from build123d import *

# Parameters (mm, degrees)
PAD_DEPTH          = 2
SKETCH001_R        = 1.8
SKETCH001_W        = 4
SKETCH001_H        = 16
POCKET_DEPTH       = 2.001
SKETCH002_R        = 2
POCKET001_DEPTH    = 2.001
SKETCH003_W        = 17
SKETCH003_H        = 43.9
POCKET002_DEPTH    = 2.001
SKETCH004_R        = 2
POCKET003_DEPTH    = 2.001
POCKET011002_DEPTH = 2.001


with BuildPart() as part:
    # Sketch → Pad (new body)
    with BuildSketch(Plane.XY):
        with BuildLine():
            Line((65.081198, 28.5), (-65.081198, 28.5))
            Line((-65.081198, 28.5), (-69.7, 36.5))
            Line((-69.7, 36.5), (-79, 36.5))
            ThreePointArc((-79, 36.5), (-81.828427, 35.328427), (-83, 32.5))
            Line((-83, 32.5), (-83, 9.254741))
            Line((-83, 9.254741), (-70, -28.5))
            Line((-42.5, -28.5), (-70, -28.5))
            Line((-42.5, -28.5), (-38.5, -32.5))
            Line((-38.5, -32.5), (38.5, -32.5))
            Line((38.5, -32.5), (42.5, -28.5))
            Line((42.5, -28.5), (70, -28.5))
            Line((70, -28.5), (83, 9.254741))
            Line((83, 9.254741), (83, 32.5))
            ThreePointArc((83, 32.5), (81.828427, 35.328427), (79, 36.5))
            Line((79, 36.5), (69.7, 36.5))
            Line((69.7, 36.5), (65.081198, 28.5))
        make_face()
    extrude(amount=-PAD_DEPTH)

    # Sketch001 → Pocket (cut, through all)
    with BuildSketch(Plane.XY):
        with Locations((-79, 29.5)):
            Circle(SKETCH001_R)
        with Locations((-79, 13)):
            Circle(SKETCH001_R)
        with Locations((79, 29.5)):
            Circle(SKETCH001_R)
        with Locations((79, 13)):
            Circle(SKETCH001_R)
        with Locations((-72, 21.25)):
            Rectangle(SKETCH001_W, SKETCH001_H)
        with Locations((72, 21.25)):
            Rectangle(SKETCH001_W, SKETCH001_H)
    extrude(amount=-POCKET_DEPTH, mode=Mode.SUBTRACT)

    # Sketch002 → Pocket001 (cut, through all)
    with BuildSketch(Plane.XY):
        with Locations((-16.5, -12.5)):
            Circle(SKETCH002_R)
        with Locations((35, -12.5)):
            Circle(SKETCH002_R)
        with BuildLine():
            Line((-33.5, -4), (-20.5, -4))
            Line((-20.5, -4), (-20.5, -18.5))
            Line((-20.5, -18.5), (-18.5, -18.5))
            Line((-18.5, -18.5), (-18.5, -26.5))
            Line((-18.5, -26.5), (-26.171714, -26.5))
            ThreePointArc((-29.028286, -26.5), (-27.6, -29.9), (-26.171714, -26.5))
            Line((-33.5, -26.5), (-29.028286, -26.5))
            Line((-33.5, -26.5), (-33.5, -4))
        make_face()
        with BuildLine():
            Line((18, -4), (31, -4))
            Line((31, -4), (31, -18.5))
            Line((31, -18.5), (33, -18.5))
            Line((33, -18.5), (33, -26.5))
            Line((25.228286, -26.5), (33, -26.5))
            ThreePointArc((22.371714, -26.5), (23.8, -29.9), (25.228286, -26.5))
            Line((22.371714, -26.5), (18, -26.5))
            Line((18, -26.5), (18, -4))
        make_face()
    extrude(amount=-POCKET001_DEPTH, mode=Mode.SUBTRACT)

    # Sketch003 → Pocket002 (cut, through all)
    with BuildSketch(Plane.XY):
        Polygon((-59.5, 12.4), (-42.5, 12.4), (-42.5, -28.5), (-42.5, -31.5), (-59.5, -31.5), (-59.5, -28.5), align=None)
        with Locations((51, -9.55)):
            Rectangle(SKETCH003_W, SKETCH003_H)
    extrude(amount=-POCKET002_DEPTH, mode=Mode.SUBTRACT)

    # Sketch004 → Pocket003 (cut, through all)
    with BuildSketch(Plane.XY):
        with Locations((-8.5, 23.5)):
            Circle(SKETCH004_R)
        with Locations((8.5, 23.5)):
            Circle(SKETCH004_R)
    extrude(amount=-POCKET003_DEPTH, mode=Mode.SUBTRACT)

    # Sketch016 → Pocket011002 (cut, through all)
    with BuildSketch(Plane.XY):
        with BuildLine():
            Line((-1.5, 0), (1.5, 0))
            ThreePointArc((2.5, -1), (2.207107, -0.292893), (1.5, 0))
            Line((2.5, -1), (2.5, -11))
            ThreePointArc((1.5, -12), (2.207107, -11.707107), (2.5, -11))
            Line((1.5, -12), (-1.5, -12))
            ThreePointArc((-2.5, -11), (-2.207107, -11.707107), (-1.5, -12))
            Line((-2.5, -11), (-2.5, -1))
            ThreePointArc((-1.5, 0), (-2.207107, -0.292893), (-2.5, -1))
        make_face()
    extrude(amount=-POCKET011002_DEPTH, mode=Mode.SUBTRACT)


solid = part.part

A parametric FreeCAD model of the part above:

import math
import FreeCAD as App
import Part
import Sketcher
Q = App.Units.Quantity

doc = App.newDocument("Part")
body = doc.addObject("PartDesign::Body", "Body")

sketch1 = body.newObject("Sketcher::SketchObject", "Sketch")
sketch1.AttachmentSupport = (doc.getObject("XY_Plane"), [""])
sketch1.MapMode = "FlatFace"
sketch1.addGeometry(Part.LineSegment(App.Vector(65.1, 28.5, 0), App.Vector(-65.1, 28.5, 0)), False)
sketch1.addGeometry(Part.LineSegment(App.Vector(-65.1, 28.5, 0), App.Vector(-69.7, 36.5, 0)), False)
sketch1.addGeometry(Part.LineSegment(App.Vector(-69.7, 36.5, 0), App.Vector(-79, 36.5, 0)), False)
sketch1.addGeometry(Part.ArcOfCircle(Part.Circle(App.Vector(-79, 32.5, 0), App.Vector(0, 0, 1), 4), math.radians(90), math.radians(180)), False)
sketch1.addGeometry(Part.LineSegment(App.Vector(-83, 32.5, 0), App.Vector(-83, 9.3, 0)), False)
sketch1.addGeometry(Part.LineSegment(App.Vector(-83, 9.3, 0), App.Vector(-70, -28.5, 0)), False)
sketch1.addGeometry(Part.LineSegment(App.Vector(-70, -28.5, 0), App.Vector(-42.5, -28.5, 0)), False)
sketch1.addGeometry(Part.LineSegment(App.Vector(-42.5, -28.5, 0), App.Vector(-38.5, -32.5, 0)), False)
sketch1.addGeometry(Part.LineSegment(App.Vector(-38.5, -32.5, 0), App.Vector(38.5, -32.5, 0)), False)
sketch1.addGeometry(Part.LineSegment(App.Vector(38.5, -32.5, 0), App.Vector(42.5, -28.5, 0)), False)
sketch1.addGeometry(Part.LineSegment(App.Vector(42.5, -28.5, 0), App.Vector(70, -28.5, 0)), False)
sketch1.addGeometry(Part.LineSegment(App.Vector(70, -28.5, 0), App.Vector(83, 9.3, 0)), False)
sketch1.addGeometry(Part.LineSegment(App.Vector(83, 9.3, 0), App.Vector(83, 32.5, 0)), False)
sketch1.addGeometry(Part.ArcOfCircle(Part.Circle(App.Vector(79, 32.5, 0), App.Vector(0, 0, 1), 4), math.radians(0), math.radians(90)), False)
sketch1.addGeometry(Part.LineSegment(App.Vector(79, 36.5, 0), App.Vector(69.7, 36.5, 0)), False)
sketch1.addGeometry(Part.LineSegment(App.Vector(69.7, 36.5, 0), App.Vector(65.1, 28.5, 0)), False)
sketch1.addConstraint(Sketcher.Constraint("Coincident", 0, 2, 1, 1))
sketch1.addConstraint(Sketcher.Constraint("Coincident", 1, 2, 2, 1))
sketch1.addConstraint(Sketcher.Constraint("Tangent", 2, 2, 3, 1))
sketch1.addConstraint(Sketcher.Constraint("Tangent", 3, 2, 4, 1))
sketch1.addConstraint(Sketcher.Constraint("Coincident", 4, 2, 5, 1))
sketch1.addConstraint(Sketcher.Constraint("Coincident", 5, 2, 6, 1))
sketch1.addConstraint(Sketcher.Constraint("Coincident", 6, 2, 7, 1))
sketch1.addConstraint(Sketcher.Constraint("Coincident", 7, 2, 8, 1))
sketch1.addConstraint(Sketcher.Constraint("Coincident", 8, 2, 9, 1))
sketch1.addConstraint(Sketcher.Constraint("Coincident", 9, 2, 10, 1))
sketch1.addConstraint(Sketcher.Constraint("Coincident", 10, 2, 11, 1))
sketch1.addConstraint(Sketcher.Constraint("Coincident", 11, 2, 12, 1))
sketch1.addConstraint(Sketcher.Constraint("Tangent", 12, 2, 13, 1))
sketch1.addConstraint(Sketcher.Constraint("Tangent", 13, 2, 14, 1))
sketch1.addConstraint(Sketcher.Constraint("Coincident", 14, 2, 15, 1))
sketch1.addConstraint(Sketcher.Constraint("Coincident", 15, 2, 0, 1))
sketch1.addConstraint(Sketcher.Constraint("Horizontal", 0))
sketch1.addConstraint(Sketcher.Constraint("Horizontal", 2))
sketch1.addConstraint(Sketcher.Constraint("Vertical", 4))
sketch1.addConstraint(Sketcher.Constraint("Horizontal", 6))
sketch1.addConstraint(Sketcher.Constraint("Horizontal", 8))
sketch1.addConstraint(Sketcher.Constraint("Horizontal", 10))
sketch1.addConstraint(Sketcher.Constraint("Vertical", 12))
sketch1.addConstraint(Sketcher.Constraint("Horizontal", 14))
sketch1.addConstraint(Sketcher.Constraint("Equal", 3, 13))
sketch1.addConstraint(Sketcher.Constraint("Symmetric", 3, 3, 13, 3, -2))
sketch1.addConstraint(Sketcher.Constraint("Symmetric", 6, 2, 9, 2, -2))
sketch1.addConstraint(Sketcher.Constraint("Perpendicular", 7, 9))
sketch1.addConstraint(Sketcher.Constraint("Horizontal", 4, 2, 11, 2))
sketch1.addConstraint(Sketcher.Constraint("Equal", 6, 10))
sketch1.addConstraint(Sketcher.Constraint("Equal", 2, 14))
sketch1.addConstraint(Sketcher.Constraint("Equal", 7, 9))
sketch1.addConstraint(Sketcher.Constraint("Equal", 1, 15))
sketch1.addConstraint(Sketcher.Constraint("Radius", 3, Q("4 mm")))
sketch1.addConstraint(Sketcher.Constraint("DistanceX", 8, 1, 8, 2, Q("77 mm")))
sketch1.addConstraint(Sketcher.Constraint("Angle", 1, Q("119.999999 deg")))
sketch1.addConstraint(Sketcher.Constraint("Angle", 5, Q("-71 deg")))
sketch1.addConstraint(Sketcher.Constraint("DistanceX", 2, 2, 2, 1, Q("9.3 mm")))
sketch1.addConstraint(Sketcher.Constraint("DistanceX", 6, 1, 6, 2, Q("27.5 mm")))
sketch1.addConstraint(Sketcher.Constraint("DistanceX", 3, 3, -1, 1, Q("79 mm")))
sketch1.addConstraint(Sketcher.Constraint("DistanceX", 5, 2, -1, 1, Q("70 mm")))
sketch1.addConstraint(Sketcher.Constraint("DistanceY", 0, 2, 3, 3, Q("4 mm")))
sketch1.addConstraint(Sketcher.Constraint("DistanceY", 5, 2, 0, 2, Q("57 mm")))
sketch1.addConstraint(Sketcher.Constraint("DistanceY", -1, 1, 3, 3, Q("32.5 mm")))
pad1 = body.newObject("PartDesign::Pad", "Pad")
pad1.Profile = sketch1
pad1.Length = 2
pad1.Reversed = True

sketch2 = body.newObject("Sketcher::SketchObject", "Sketch001")
sketch2.AttachmentSupport = (doc.getObject("XY_Plane"), [""])
sketch2.MapMode = "FlatFace"
sketch2.addGeometry(Part.Circle(App.Vector(-79, 29.5, 0), App.Vector(0, 0, 1), 1.8), False)
sketch2.addGeometry(Part.Circle(App.Vector(-79, 13, 0), App.Vector(0, 0, 1), 1.8), False)
sketch2.addGeometry(Part.Circle(App.Vector(79, 29.5, 0), App.Vector(0, 0, 1), 1.8), False)
sketch2.addGeometry(Part.Circle(App.Vector(79, 13, 0), App.Vector(0, 0, 1), 1.8), False)
sketch2.addGeometry(Part.LineSegment(App.Vector(-74, 29.2, 0), App.Vector(-74, 13.2, 0)), False)
sketch2.addGeometry(Part.LineSegment(App.Vector(-74, 13.2, 0), App.Vector(-70, 13.2, 0)), False)
sketch2.addGeometry(Part.LineSegment(App.Vector(-70, 13.2, 0), App.Vector(-70, 29.2, 0)), False)
sketch2.addGeometry(Part.LineSegment(App.Vector(-70, 29.2, 0), App.Vector(-74, 29.2, 0)), False)
sketch2.addGeometry(Part.LineSegment(App.Vector(70, 29.2, 0), App.Vector(70, 13.2, 0)), False)
sketch2.addGeometry(Part.LineSegment(App.Vector(70, 13.2, 0), App.Vector(74, 13.2, 0)), False)
sketch2.addGeometry(Part.LineSegment(App.Vector(74, 13.2, 0), App.Vector(74, 29.2, 0)), False)
sketch2.addGeometry(Part.LineSegment(App.Vector(74, 29.2, 0), App.Vector(70, 29.2, 0)), False)
sketch2.addConstraint(Sketcher.Constraint("Coincident", 4, 2, 5, 1))
sketch2.addConstraint(Sketcher.Constraint("Coincident", 5, 2, 6, 1))
sketch2.addConstraint(Sketcher.Constraint("Coincident", 6, 2, 7, 1))
sketch2.addConstraint(Sketcher.Constraint("Coincident", 7, 2, 4, 1))
sketch2.addConstraint(Sketcher.Constraint("Coincident", 8, 2, 9, 1))
sketch2.addConstraint(Sketcher.Constraint("Coincident", 9, 2, 10, 1))
sketch2.addConstraint(Sketcher.Constraint("Coincident", 10, 2, 11, 1))
sketch2.addConstraint(Sketcher.Constraint("Coincident", 11, 2, 8, 1))
sketch2.addConstraint(Sketcher.Constraint("Vertical", 4))
sketch2.addConstraint(Sketcher.Constraint("Horizontal", 5))
sketch2.addConstraint(Sketcher.Constraint("Vertical", 6))
sketch2.addConstraint(Sketcher.Constraint("Horizontal", 7))
sketch2.addConstraint(Sketcher.Constraint("Vertical", 8))
sketch2.addConstraint(Sketcher.Constraint("Horizontal", 9))
sketch2.addConstraint(Sketcher.Constraint("Vertical", 10))
sketch2.addConstraint(Sketcher.Constraint("Horizontal", 11))
sketch2.addConstraint(Sketcher.Constraint("Equal", 0, 1))
sketch2.addConstraint(Sketcher.Constraint("Equal", 1, 2))
sketch2.addConstraint(Sketcher.Constraint("Equal", 2, 3))
sketch2.addConstraint(Sketcher.Constraint("Symmetric", 0, 3, 2, 3, -2))
sketch2.addConstraint(Sketcher.Constraint("Symmetric", 1, 3, 3, 3, -2))
sketch2.addConstraint(Sketcher.Constraint("Symmetric", 5, 2, 8, 2, -2))
sketch2.addConstraint(Sketcher.Constraint("Symmetric", 7, 2, 10, 2, -2))
sketch2.addConstraint(Sketcher.Constraint("Vertical", 0, 3, 1, 3))
sketch2.addConstraint(Sketcher.Constraint("Diameter", 0, Q("3.6 mm")))
sketch2.addConstraint(Sketcher.Constraint("DistanceX", 5, 1, 5, 2, Q("4 mm")))
sketch2.addConstraint(Sketcher.Constraint("DistanceY", 4, 2, 4, 1, Q("16 mm")))
sketch2.addConstraint(Sketcher.Constraint("DistanceX", 0, 3, -1, 1, Q("79 mm")))
sketch2.addConstraint(Sketcher.Constraint("DistanceY", -1, 1, 1, 3, Q("13 mm")))
sketch2.addConstraint(Sketcher.Constraint("DistanceX", 4, 2, -1, 1, Q("74 mm")))
sketch2.addConstraint(Sketcher.Constraint("DistanceY", -1, 1, 0, 3, Q("29.5 mm")))
sketch2.addConstraint(Sketcher.Constraint("DistanceY", -1, 1, 4, 2, Q("13.25 mm")))
pocket1 = body.newObject("PartDesign::Pocket", "Pocket")
pocket1.Profile = sketch2
pocket1.Type = "ThroughAll"

sketch3 = body.newObject("Sketcher::SketchObject", "Sketch002")
sketch3.AttachmentSupport = (doc.getObject("XY_Plane"), [""])
sketch3.MapMode = "FlatFace"
sketch3.addGeometry(Part.Circle(App.Vector(-16.5, -12.5, 0), App.Vector(0, 0, 1), 2), False)
sketch3.addGeometry(Part.Circle(App.Vector(35, -12.5, 0), App.Vector(0, 0, 1), 2), False)
sketch3.addGeometry(Part.LineSegment(App.Vector(-20.5, -4, 0), App.Vector(-33.5, -4, 0)), False)
sketch3.addGeometry(Part.LineSegment(App.Vector(-33.5, -4, 0), App.Vector(-33.5, -26.5, 0)), False)
sketch3.addGeometry(Part.LineSegment(App.Vector(-33.5, -26.5, 0), App.Vector(-29, -26.5, 0)), False)
sketch3.addGeometry(Part.ArcOfCircle(Part.Circle(App.Vector(-27.6, -27.9, 0), App.Vector(0, 0, 1), 2), math.radians(136), math.radians(404)), False)
sketch3.addGeometry(Part.LineSegment(App.Vector(-26.2, -26.5, 0), App.Vector(-18.5, -26.5, 0)), False)
sketch3.addGeometry(Part.LineSegment(App.Vector(-18.5, -26.5, 0), App.Vector(-18.5, -18.5, 0)), False)
sketch3.addGeometry(Part.LineSegment(App.Vector(-18.5, -18.5, 0), App.Vector(-20.5, -18.5, 0)), False)
sketch3.addGeometry(Part.LineSegment(App.Vector(-20.5, -18.5, 0), App.Vector(-20.5, -4, 0)), False)
sketch3.addGeometry(Part.LineSegment(App.Vector(31, -4, 0), App.Vector(18, -4, 0)), False)
sketch3.addGeometry(Part.LineSegment(App.Vector(18, -4, 0), App.Vector(18, -26.5, 0)), False)
sketch3.addGeometry(Part.LineSegment(App.Vector(18, -26.5, 0), App.Vector(22.4, -26.5, 0)), False)
sketch3.addGeometry(Part.ArcOfCircle(Part.Circle(App.Vector(23.8, -27.9, 0), App.Vector(0, 0, 1), 2), math.radians(136), math.radians(404)), False)
sketch3.addGeometry(Part.LineSegment(App.Vector(25.2, -26.5, 0), App.Vector(33, -26.5, 0)), False)
sketch3.addGeometry(Part.LineSegment(App.Vector(33, -26.5, 0), App.Vector(33, -18.5, 0)), False)
sketch3.addGeometry(Part.LineSegment(App.Vector(33, -18.5, 0), App.Vector(31, -18.5, 0)), False)
sketch3.addGeometry(Part.LineSegment(App.Vector(31, -18.5, 0), App.Vector(31, -4, 0)), False)
sketch3.addConstraint(Sketcher.Constraint("Coincident", 2, 2, 3, 1))
sketch3.addConstraint(Sketcher.Constraint("Coincident", 3, 2, 4, 1))
sketch3.addConstraint(Sketcher.Constraint("Coincident", 4, 2, 5, 1))
sketch3.addConstraint(Sketcher.Constraint("Coincident", 5, 2, 6, 1))
sketch3.addConstraint(Sketcher.Constraint("Coincident", 6, 2, 7, 1))
sketch3.addConstraint(Sketcher.Constraint("Coincident", 7, 2, 8, 1))
sketch3.addConstraint(Sketcher.Constraint("Coincident", 8, 2, 9, 1))
sketch3.addConstraint(Sketcher.Constraint("Coincident", 9, 2, 2, 1))
sketch3.addConstraint(Sketcher.Constraint("Coincident", 10, 2, 11, 1))
sketch3.addConstraint(Sketcher.Constraint("Coincident", 11, 2, 12, 1))
sketch3.addConstraint(Sketcher.Constraint("Coincident", 12, 2, 13, 1))
sketch3.addConstraint(Sketcher.Constraint("Coincident", 13, 2, 14, 1))
sketch3.addConstraint(Sketcher.Constraint("Coincident", 14, 2, 15, 1))
sketch3.addConstraint(Sketcher.Constraint("Coincident", 15, 2, 16, 1))
sketch3.addConstraint(Sketcher.Constraint("Coincident", 16, 2, 17, 1))
sketch3.addConstraint(Sketcher.Constraint("Coincident", 17, 2, 10, 1))
sketch3.addConstraint(Sketcher.Constraint("Horizontal", 2))
sketch3.addConstraint(Sketcher.Constraint("Vertical", 3))
sketch3.addConstraint(Sketcher.Constraint("Horizontal", 4))
sketch3.addConstraint(Sketcher.Constraint("Horizontal", 6))
sketch3.addConstraint(Sketcher.Constraint("Vertical", 7))
sketch3.addConstraint(Sketcher.Constraint("Horizontal", 8))
sketch3.addConstraint(Sketcher.Constraint("Vertical", 9))
sketch3.addConstraint(Sketcher.Constraint("Horizontal", 10))
sketch3.addConstraint(Sketcher.Constraint("Vertical", 11))
sketch3.addConstraint(Sketcher.Constraint("Horizontal", 12))
sketch3.addConstraint(Sketcher.Constraint("Horizontal", 14))
sketch3.addConstraint(Sketcher.Constraint("Vertical", 15))
sketch3.addConstraint(Sketcher.Constraint("Horizontal", 16))
sketch3.addConstraint(Sketcher.Constraint("Vertical", 17))
sketch3.addConstraint(Sketcher.Constraint("Equal", 0, 1))
sketch3.addConstraint(Sketcher.Constraint("Equal", 1, 5))
sketch3.addConstraint(Sketcher.Constraint("Equal", 5, 13))
sketch3.addConstraint(Sketcher.Constraint("Horizontal", 0, 3, 1, 3))
sketch3.addConstraint(Sketcher.Constraint("Horizontal", 5, 3, 13, 3))
sketch3.addConstraint(Sketcher.Constraint("Horizontal", 4, 2, 5, 2))
sketch3.addConstraint(Sketcher.Constraint("Horizontal", 9, 2, 10, 2))
sketch3.addConstraint(Sketcher.Constraint("Horizontal", 6, 2, 11, 2))
sketch3.addConstraint(Sketcher.Constraint("Horizontal", 12, 2, 13, 2))
sketch3.addConstraint(Sketcher.Constraint("Horizontal", 8, 2, 15, 2))
sketch3.addConstraint(Sketcher.Constraint("Equal", 2, 10))
sketch3.addConstraint(Sketcher.Constraint("Equal", 8, 16))
sketch3.addConstraint(Sketcher.Constraint("Diameter", 0, Q("4 mm")))
sketch3.addConstraint(Sketcher.Constraint("DistanceX", 2, 2, 2, 1, Q("13 mm")))
sketch3.addConstraint(Sketcher.Constraint("DistanceX", 8, 2, 8, 1, Q("2 mm")))
sketch3.addConstraint(Sketcher.Constraint("DistanceY", 7, 1, 7, 2, Q("8 mm")))
sketch3.addConstraint(Sketcher.Constraint("DistanceY", 3, 2, 3, 1, Q("22.5 mm")))
sketch3.addConstraint(Sketcher.Constraint("DistanceX", -1, 1, 1, 3, Q("35 mm")))
sketch3.addConstraint(Sketcher.Constraint("DistanceY", 2, 2, -1, 1, Q("4 mm")))
sketch3.addConstraint(Sketcher.Constraint("DistanceX", -1, 1, 10, 2, Q("18 mm")))
sketch3.addConstraint(Sketcher.Constraint("DistanceX", 2, 2, 0, 3, Q("17 mm")))
sketch3.addConstraint(Sketcher.Constraint("DistanceY", 3, 2, 0, 3, Q("14 mm")))
sketch3.addConstraint(Sketcher.Constraint("DistanceX", 0, 3, -1, 1, Q("16.5 mm")))
sketch3.addConstraint(Sketcher.Constraint("DistanceX", 5, 3, -1, 1, Q("27.6 mm")))
sketch3.addConstraint(Sketcher.Constraint("DistanceY", 5, 3, -1, 1, Q("27.9 mm")))
sketch3.addConstraint(Sketcher.Constraint("DistanceX", -1, 1, 13, 3, Q("23.8 mm")))
pocket2 = body.newObject("PartDesign::Pocket", "Pocket001")
pocket2.Profile = sketch3
pocket2.Type = "ThroughAll"

sketch4 = body.newObject("Sketcher::SketchObject", "Sketch003")
sketch4.AttachmentSupport = (doc.getObject("XY_Plane"), [""])
sketch4.MapMode = "FlatFace"
sketch4.addGeometry(Part.LineSegment(App.Vector(-42, 12, 0), App.Vector(-60, 12, 0)), False)
sketch4.addGeometry(Part.LineSegment(App.Vector(-60, 12, 0), App.Vector(-60, -32, 0)), False)
sketch4.addGeometry(Part.LineSegment(App.Vector(-60, -32, 0), App.Vector(-42, -32, 0)), False)
sketch4.addGeometry(Part.LineSegment(App.Vector(-42, -32, 0), App.Vector(-42, 12, 0)), False)
sketch4.addGeometry(Part.LineSegment(App.Vector(42, 12, 0), App.Vector(42, -32, 0)), False)
sketch4.addGeometry(Part.LineSegment(App.Vector(42, -32, 0), App.Vector(60, -32, 0)), False)
sketch4.addGeometry(Part.LineSegment(App.Vector(60, -32, 0), App.Vector(60, 12, 0)), False)
sketch4.addGeometry(Part.LineSegment(App.Vector(60, 12, 0), App.Vector(42, 12, 0)), False)
sketch4.addConstraint(Sketcher.Constraint("Coincident", 0, 2, 1, 1))
sketch4.addConstraint(Sketcher.Constraint("Coincident", 1, 2, 2, 1))
sketch4.addConstraint(Sketcher.Constraint("Coincident", 2, 2, 3, 1))
sketch4.addConstraint(Sketcher.Constraint("Coincident", 3, 2, 0, 1))
sketch4.addConstraint(Sketcher.Constraint("Coincident", 4, 2, 5, 1))
sketch4.addConstraint(Sketcher.Constraint("Coincident", 5, 2, 6, 1))
sketch4.addConstraint(Sketcher.Constraint("Coincident", 6, 2, 7, 1))
sketch4.addConstraint(Sketcher.Constraint("Coincident", 7, 2, 4, 1))
sketch4.addConstraint(Sketcher.Constraint("Horizontal", 0))
sketch4.addConstraint(Sketcher.Constraint("Vertical", 1))
sketch4.addConstraint(Sketcher.Constraint("Horizontal", 2))
sketch4.addConstraint(Sketcher.Constraint("Vertical", 3))
sketch4.addConstraint(Sketcher.Constraint("Vertical", 4))
sketch4.addConstraint(Sketcher.Constraint("Horizontal", 5))
sketch4.addConstraint(Sketcher.Constraint("Vertical", 6))
sketch4.addConstraint(Sketcher.Constraint("Horizontal", 7))
sketch4.addConstraint(Sketcher.Constraint("Symmetric", 2, 2, 4, 2, -2))
sketch4.addConstraint(Sketcher.Constraint("Symmetric", 0, 2, 6, 2, -2))
sketch4.addConstraint(Sketcher.Constraint("DistanceX", 0, 2, 0, 1, Q("17 mm")))
sketch4.addConstraint(Sketcher.Constraint("DistanceY", 1, 2, 1, 1, Q("43.9 mm")))
sketch4.addConstraint(Sketcher.Constraint("DistanceX", 2, 2, 4, 2, Q("85 mm")))
sketch4.addConstraint(Sketcher.Constraint("DistanceY", -1, 1, 0, 2, Q("12.4 mm")))
pocket3 = body.newObject("PartDesign::Pocket", "Pocket002")
pocket3.Profile = sketch4
pocket3.Type = "ThroughAll"

sketch5 = body.newObject("Sketcher::SketchObject", "Sketch004")
sketch5.AttachmentSupport = (doc.getObject("XY_Plane"), [""])
sketch5.MapMode = "FlatFace"
sketch5.addGeometry(Part.Circle(App.Vector(-8.5, 23.5, 0), App.Vector(0, 0, 1), 2), False)
sketch5.addGeometry(Part.Circle(App.Vector(8.5, 23.5, 0), App.Vector(0, 0, 1), 2), False)
sketch5.addConstraint(Sketcher.Constraint("Equal", 0, 1))
sketch5.addConstraint(Sketcher.Constraint("Symmetric", 0, 3, 1, 3, -2))
sketch5.addConstraint(Sketcher.Constraint("Diameter", 0, Q("4 mm")))
sketch5.addConstraint(Sketcher.Constraint("DistanceX", 0, 3, 1, 3, Q("17 mm")))
sketch5.addConstraint(Sketcher.Constraint("DistanceY", -1, 1, 0, 3, Q("23.5 mm")))
pocket4 = body.newObject("PartDesign::Pocket", "Pocket003")
pocket4.Profile = sketch5
pocket4.Type = "ThroughAll"

sketch6 = body.newObject("Sketcher::SketchObject", "Sketch005")
sketch6.AttachmentSupport = (doc.getObject("XY_Plane"), [""])
sketch6.MapMode = "FlatFace"
sketch6.addGeometry(Part.LineSegment(App.Vector(1.5, 0, 0), App.Vector(-1.5, 0, 0)), False)
sketch6.addGeometry(Part.ArcOfCircle(Part.Circle(App.Vector(-1.5, -1, 0), App.Vector(0, 0, 1), 1), math.radians(90), math.radians(180)), False)
sketch6.addGeometry(Part.LineSegment(App.Vector(-2.5, -1, 0), App.Vector(-2.5, -11, 0)), False)
sketch6.addGeometry(Part.ArcOfCircle(Part.Circle(App.Vector(-1.5, -11, 0), App.Vector(0, 0, 1), 1), math.radians(180), math.radians(270)), False)
sketch6.addGeometry(Part.LineSegment(App.Vector(-1.5, -12, 0), App.Vector(1.5, -12, 0)), False)
sketch6.addGeometry(Part.ArcOfCircle(Part.Circle(App.Vector(1.5, -11, 0), App.Vector(0, 0, 1), 1), math.radians(-90), math.radians(0)), False)
sketch6.addGeometry(Part.LineSegment(App.Vector(2.5, -11, 0), App.Vector(2.5, -1, 0)), False)
sketch6.addGeometry(Part.ArcOfCircle(Part.Circle(App.Vector(1.5, -1, 0), App.Vector(0, 0, 1), 1), math.radians(0), math.radians(90)), False)
sketch6.addConstraint(Sketcher.Constraint("Tangent", 0, 2, 1, 1))
sketch6.addConstraint(Sketcher.Constraint("Tangent", 1, 2, 2, 1))
sketch6.addConstraint(Sketcher.Constraint("Tangent", 2, 2, 3, 1))
sketch6.addConstraint(Sketcher.Constraint("Tangent", 3, 2, 4, 1))
sketch6.addConstraint(Sketcher.Constraint("Tangent", 4, 2, 5, 1))
sketch6.addConstraint(Sketcher.Constraint("Tangent", 5, 2, 6, 1))
sketch6.addConstraint(Sketcher.Constraint("Tangent", 6, 2, 7, 1))
sketch6.addConstraint(Sketcher.Constraint("Tangent", 7, 2, 0, 1))
sketch6.addConstraint(Sketcher.Constraint("Horizontal", 0))
sketch6.addConstraint(Sketcher.Constraint("Vertical", 2))
sketch6.addConstraint(Sketcher.Constraint("Horizontal", 4))
sketch6.addConstraint(Sketcher.Constraint("Vertical", 6))
sketch6.addConstraint(Sketcher.Constraint("Equal", 1, 3))
sketch6.addConstraint(Sketcher.Constraint("Equal", 3, 5))
sketch6.addConstraint(Sketcher.Constraint("Equal", 5, 7))
sketch6.addConstraint(Sketcher.Constraint("Symmetric", 0, 2, 7, 2, -1, 1))
sketch6.addConstraint(Sketcher.Constraint("Radius", 1, Q("0.999999 mm")))
sketch6.addConstraint(Sketcher.Constraint("DistanceX", 0, 2, 0, 1, Q("3 mm")))
sketch6.addConstraint(Sketcher.Constraint("DistanceY", 2, 2, 2, 1, Q("10 mm")))
pocket5 = body.newObject("PartDesign::Pocket", "Pocket004")
pocket5.Profile = sketch6
pocket5.Type = "ThroughAll"

doc.recompute()
